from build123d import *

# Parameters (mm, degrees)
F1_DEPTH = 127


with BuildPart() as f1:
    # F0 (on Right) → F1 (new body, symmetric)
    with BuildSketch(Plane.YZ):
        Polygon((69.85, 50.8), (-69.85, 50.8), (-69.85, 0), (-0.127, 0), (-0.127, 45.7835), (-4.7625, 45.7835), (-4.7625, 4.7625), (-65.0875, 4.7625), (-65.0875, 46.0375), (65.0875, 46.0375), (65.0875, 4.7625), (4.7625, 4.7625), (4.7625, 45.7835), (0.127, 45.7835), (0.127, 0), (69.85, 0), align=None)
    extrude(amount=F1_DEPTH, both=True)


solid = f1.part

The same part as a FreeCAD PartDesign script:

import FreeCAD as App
import Part
import Sketcher
Q = App.Units.Quantity

doc = App.newDocument("Part")
body = doc.addObject("PartDesign::Body", "Body")

# Sketch on YZ plane
sketch1 = doc.addObject("Sketcher::SketchObject", "Sketch")
body.addObject(sketch1)
sketch1.AttachmentSupport = (doc.YZ_Plane, [""])
sketch1.MapMode = "FlatFace"
sketch1.addGeometry(Part.LineSegment(App.Vector(69.8, 50.8, 0), App.Vector(-69.8, 50.8, 0)), False)
sketch1.addGeometry(Part.LineSegment(App.Vector(-69.8, 50.8, 0), App.Vector(-69.8, 0, 0)), False)
sketch1.addGeometry(Part.LineSegment(App.Vector(-69.8, 0, 0), App.Vector(-0.1, 0, 0)), False)
sketch1.addGeometry(Part.LineSegment(App.Vector(-0.1, 0, 0), App.Vector(-0.1, 45.8, 0)), False)
sketch1.addGeometry(Part.LineSegment(App.Vector(-0.1, 45.8, 0), App.Vector(-4.8, 45.8, 0)), False)
sketch1.addGeometry(Part.LineSegment(App.Vector(-4.8, 45.8, 0), App.Vector(-4.8, 4.8, 0)), False)
sketch1.addGeometry(Part.LineSegment(App.Vector(-4.8, 4.8, 0), App.Vector(-65.1, 4.8, 0)), False)
sketch1.addGeometry(Part.LineSegment(App.Vector(-65.1, 4.8, 0), App.Vector(-65.1, 46, 0)), False)
sketch1.addGeometry(Part.LineSegment(App.Vector(-65.1, 46, 0), App.Vector(65.1, 46, 0)), False)
sketch1.addGeometry(Part.LineSegment(App.Vector(65.1, 46, 0), App.Vector(65.1, 4.8, 0)), False)
sketch1.addGeometry(Part.LineSegment(App.Vector(65.1, 4.8, 0), App.Vector(4.8, 4.8, 0)), False)
sketch1.addGeometry(Part.LineSegment(App.Vector(4.8, 4.8, 0), App.Vector(4.8, 45.8, 0)), False)
sketch1.addGeometry(Part.LineSegment(App.Vector(4.8, 45.8, 0), App.Vector(0.1, 45.8, 0)), False)
sketch1.addGeometry(Part.LineSegment(App.Vector(0.1, 45.8, 0), App.Vector(0.1, 0, 0)), False)
sketch1.addGeometry(Part.LineSegment(App.Vector(0.1, 0, 0), App.Vector(69.8, 0, 0)), False)
sketch1.addGeometry(Part.LineSegment(App.Vector(69.8, 0, 0), App.Vector(69.8, 50.8, 0)), False)
sketch1.addConstraint(Sketcher.Constraint("Coincident", 0, 2, 1, 1))
sketch1.addConstraint(Sketcher.Constraint("Coincident", 1, 2, 2, 1))
sketch1.addConstraint(Sketcher.Constraint("Coincident", 2, 2, 3, 1))
sketch1.addConstraint(Sketcher.Constraint("Coincident", 3, 2, 4, 1))
sketch1.addConstraint(Sketcher.Constraint("Coincident", 4, 2, 5, 1))
sketch1.addConstraint(Sketcher.Constraint("Coincident", 5, 2, 6, 1))
sketch1.addConstraint(Sketcher.Constraint("Coincident", 6, 2, 7, 1))
sketch1.addConstraint(Sketcher.Constraint("Coincident", 7, 2, 8, 1))
sketch1.addConstraint(Sketcher.Constraint("Coincident", 8, 2, 9, 1))
sketch1.addConstraint(Sketcher.Constraint("Coincident", 9, 2, 10, 1))
sketch1.addConstraint(Sketcher.Constraint("Coincident", 10, 2, 11, 1))
sketch1.addConstraint(Sketcher.Constraint("Coincident", 11, 2, 12, 1))
sketch1.addConstraint(Sketcher.Constraint("Coincident", 12, 2, 13, 1))
sketch1.addConstraint(Sketcher.Constraint("Coincident", 13, 2, 14, 1))
sketch1.addConstraint(Sketcher.Constraint("Coincident", 14, 2, 15, 1))
sketch1.addConstraint(Sketcher.Constraint("Coincident", 15, 2, 0, 1))
sketch1.addConstraint(Sketcher.Constraint("Horizontal", 0))
sketch1.addConstraint(Sketcher.Constraint("Vertical", 1))
sketch1.addConstraint(Sketcher.Constraint("Horizontal", 2))
sketch1.addConstraint(Sketcher.Constraint("Vertical", 3))
sketch1.addConstraint(Sketcher.Constraint("Horizontal", 4))
sketch1.addConstraint(Sketcher.Constraint("Vertical", 5))
sketch1.addConstraint(Sketcher.Constraint("Horizontal", 6))
sketch1.addConstraint(Sketcher.Constraint("Vertical", 7))
sketch1.addConstraint(Sketcher.Constraint("Horizontal", 8))
sketch1.addConstraint(Sketcher.Constraint("Vertical", 9))
sketch1.addConstraint(Sketcher.Constraint("Horizontal", 10))
sketch1.addConstraint(Sketcher.Constraint("Vertical", 11))
sketch1.addConstraint(Sketcher.Constraint("Horizontal", 12))
sketch1.addConstraint(Sketcher.Constraint("Vertical", 13))
sketch1.addConstraint(Sketcher.Constraint("Horizontal", 14))
sketch1.addConstraint(Sketcher.Constraint("Vertical", 15))
sketch1.addConstraint(Sketcher.Constraint("Symmetric", 2, 2, 13, 2, -1, 1))
sketch1.addConstraint(Sketcher.Constraint("Symmetric", 6, 2, 9, 2, -2))
sketch1.addConstraint(Sketcher.Constraint("Symmetric", 4, 2, 11, 2, -2))
sketch1.addConstraint(Sketcher.Constraint("Symmetric", 1, 2, 14, 2, -2))
sketch1.addConstraint(Sketcher.Constraint("DistanceY", 1, 2, 1, 1, Q("2 in")))
sketch1.addConstraint(Sketcher.Constraint("DistanceX", 0, 2, 0, 1, Q("5.5 in")))
sketch1.addConstraint(Sketcher.Constraint("DistanceX", 2, 1, 2, 2, Q("2.745 in")))
sketch1.addConstraint(Sketcher.Constraint("DistanceX", 6, 2, 6, 1, Q("2.375 in")))
sketch1.addConstraint(Sketcher.Constraint("DistanceX", 8, 1, 8, 2, Q("5.125 in")))
sketch1.addConstraint(Sketcher.Constraint("DistanceY", 5, 2, 5, 1, Q("1.615 in")))
sketch1.addConstraint(Sketcher.Constraint("DistanceY", 7, 1, 7, 2, Q("1.625 in")))
sketch1.addConstraint(Sketcher.Constraint("DistanceY", 3, 1, 3, 2, Q("1.8025 in")))
pad1 = doc.addObject("PartDesign::Pad", "Pad")
body.addObject(pad1)
pad1.Profile = sketch1
pad1.Length = Q("10 in")
pad1.Midplane = True

doc.recompute()
